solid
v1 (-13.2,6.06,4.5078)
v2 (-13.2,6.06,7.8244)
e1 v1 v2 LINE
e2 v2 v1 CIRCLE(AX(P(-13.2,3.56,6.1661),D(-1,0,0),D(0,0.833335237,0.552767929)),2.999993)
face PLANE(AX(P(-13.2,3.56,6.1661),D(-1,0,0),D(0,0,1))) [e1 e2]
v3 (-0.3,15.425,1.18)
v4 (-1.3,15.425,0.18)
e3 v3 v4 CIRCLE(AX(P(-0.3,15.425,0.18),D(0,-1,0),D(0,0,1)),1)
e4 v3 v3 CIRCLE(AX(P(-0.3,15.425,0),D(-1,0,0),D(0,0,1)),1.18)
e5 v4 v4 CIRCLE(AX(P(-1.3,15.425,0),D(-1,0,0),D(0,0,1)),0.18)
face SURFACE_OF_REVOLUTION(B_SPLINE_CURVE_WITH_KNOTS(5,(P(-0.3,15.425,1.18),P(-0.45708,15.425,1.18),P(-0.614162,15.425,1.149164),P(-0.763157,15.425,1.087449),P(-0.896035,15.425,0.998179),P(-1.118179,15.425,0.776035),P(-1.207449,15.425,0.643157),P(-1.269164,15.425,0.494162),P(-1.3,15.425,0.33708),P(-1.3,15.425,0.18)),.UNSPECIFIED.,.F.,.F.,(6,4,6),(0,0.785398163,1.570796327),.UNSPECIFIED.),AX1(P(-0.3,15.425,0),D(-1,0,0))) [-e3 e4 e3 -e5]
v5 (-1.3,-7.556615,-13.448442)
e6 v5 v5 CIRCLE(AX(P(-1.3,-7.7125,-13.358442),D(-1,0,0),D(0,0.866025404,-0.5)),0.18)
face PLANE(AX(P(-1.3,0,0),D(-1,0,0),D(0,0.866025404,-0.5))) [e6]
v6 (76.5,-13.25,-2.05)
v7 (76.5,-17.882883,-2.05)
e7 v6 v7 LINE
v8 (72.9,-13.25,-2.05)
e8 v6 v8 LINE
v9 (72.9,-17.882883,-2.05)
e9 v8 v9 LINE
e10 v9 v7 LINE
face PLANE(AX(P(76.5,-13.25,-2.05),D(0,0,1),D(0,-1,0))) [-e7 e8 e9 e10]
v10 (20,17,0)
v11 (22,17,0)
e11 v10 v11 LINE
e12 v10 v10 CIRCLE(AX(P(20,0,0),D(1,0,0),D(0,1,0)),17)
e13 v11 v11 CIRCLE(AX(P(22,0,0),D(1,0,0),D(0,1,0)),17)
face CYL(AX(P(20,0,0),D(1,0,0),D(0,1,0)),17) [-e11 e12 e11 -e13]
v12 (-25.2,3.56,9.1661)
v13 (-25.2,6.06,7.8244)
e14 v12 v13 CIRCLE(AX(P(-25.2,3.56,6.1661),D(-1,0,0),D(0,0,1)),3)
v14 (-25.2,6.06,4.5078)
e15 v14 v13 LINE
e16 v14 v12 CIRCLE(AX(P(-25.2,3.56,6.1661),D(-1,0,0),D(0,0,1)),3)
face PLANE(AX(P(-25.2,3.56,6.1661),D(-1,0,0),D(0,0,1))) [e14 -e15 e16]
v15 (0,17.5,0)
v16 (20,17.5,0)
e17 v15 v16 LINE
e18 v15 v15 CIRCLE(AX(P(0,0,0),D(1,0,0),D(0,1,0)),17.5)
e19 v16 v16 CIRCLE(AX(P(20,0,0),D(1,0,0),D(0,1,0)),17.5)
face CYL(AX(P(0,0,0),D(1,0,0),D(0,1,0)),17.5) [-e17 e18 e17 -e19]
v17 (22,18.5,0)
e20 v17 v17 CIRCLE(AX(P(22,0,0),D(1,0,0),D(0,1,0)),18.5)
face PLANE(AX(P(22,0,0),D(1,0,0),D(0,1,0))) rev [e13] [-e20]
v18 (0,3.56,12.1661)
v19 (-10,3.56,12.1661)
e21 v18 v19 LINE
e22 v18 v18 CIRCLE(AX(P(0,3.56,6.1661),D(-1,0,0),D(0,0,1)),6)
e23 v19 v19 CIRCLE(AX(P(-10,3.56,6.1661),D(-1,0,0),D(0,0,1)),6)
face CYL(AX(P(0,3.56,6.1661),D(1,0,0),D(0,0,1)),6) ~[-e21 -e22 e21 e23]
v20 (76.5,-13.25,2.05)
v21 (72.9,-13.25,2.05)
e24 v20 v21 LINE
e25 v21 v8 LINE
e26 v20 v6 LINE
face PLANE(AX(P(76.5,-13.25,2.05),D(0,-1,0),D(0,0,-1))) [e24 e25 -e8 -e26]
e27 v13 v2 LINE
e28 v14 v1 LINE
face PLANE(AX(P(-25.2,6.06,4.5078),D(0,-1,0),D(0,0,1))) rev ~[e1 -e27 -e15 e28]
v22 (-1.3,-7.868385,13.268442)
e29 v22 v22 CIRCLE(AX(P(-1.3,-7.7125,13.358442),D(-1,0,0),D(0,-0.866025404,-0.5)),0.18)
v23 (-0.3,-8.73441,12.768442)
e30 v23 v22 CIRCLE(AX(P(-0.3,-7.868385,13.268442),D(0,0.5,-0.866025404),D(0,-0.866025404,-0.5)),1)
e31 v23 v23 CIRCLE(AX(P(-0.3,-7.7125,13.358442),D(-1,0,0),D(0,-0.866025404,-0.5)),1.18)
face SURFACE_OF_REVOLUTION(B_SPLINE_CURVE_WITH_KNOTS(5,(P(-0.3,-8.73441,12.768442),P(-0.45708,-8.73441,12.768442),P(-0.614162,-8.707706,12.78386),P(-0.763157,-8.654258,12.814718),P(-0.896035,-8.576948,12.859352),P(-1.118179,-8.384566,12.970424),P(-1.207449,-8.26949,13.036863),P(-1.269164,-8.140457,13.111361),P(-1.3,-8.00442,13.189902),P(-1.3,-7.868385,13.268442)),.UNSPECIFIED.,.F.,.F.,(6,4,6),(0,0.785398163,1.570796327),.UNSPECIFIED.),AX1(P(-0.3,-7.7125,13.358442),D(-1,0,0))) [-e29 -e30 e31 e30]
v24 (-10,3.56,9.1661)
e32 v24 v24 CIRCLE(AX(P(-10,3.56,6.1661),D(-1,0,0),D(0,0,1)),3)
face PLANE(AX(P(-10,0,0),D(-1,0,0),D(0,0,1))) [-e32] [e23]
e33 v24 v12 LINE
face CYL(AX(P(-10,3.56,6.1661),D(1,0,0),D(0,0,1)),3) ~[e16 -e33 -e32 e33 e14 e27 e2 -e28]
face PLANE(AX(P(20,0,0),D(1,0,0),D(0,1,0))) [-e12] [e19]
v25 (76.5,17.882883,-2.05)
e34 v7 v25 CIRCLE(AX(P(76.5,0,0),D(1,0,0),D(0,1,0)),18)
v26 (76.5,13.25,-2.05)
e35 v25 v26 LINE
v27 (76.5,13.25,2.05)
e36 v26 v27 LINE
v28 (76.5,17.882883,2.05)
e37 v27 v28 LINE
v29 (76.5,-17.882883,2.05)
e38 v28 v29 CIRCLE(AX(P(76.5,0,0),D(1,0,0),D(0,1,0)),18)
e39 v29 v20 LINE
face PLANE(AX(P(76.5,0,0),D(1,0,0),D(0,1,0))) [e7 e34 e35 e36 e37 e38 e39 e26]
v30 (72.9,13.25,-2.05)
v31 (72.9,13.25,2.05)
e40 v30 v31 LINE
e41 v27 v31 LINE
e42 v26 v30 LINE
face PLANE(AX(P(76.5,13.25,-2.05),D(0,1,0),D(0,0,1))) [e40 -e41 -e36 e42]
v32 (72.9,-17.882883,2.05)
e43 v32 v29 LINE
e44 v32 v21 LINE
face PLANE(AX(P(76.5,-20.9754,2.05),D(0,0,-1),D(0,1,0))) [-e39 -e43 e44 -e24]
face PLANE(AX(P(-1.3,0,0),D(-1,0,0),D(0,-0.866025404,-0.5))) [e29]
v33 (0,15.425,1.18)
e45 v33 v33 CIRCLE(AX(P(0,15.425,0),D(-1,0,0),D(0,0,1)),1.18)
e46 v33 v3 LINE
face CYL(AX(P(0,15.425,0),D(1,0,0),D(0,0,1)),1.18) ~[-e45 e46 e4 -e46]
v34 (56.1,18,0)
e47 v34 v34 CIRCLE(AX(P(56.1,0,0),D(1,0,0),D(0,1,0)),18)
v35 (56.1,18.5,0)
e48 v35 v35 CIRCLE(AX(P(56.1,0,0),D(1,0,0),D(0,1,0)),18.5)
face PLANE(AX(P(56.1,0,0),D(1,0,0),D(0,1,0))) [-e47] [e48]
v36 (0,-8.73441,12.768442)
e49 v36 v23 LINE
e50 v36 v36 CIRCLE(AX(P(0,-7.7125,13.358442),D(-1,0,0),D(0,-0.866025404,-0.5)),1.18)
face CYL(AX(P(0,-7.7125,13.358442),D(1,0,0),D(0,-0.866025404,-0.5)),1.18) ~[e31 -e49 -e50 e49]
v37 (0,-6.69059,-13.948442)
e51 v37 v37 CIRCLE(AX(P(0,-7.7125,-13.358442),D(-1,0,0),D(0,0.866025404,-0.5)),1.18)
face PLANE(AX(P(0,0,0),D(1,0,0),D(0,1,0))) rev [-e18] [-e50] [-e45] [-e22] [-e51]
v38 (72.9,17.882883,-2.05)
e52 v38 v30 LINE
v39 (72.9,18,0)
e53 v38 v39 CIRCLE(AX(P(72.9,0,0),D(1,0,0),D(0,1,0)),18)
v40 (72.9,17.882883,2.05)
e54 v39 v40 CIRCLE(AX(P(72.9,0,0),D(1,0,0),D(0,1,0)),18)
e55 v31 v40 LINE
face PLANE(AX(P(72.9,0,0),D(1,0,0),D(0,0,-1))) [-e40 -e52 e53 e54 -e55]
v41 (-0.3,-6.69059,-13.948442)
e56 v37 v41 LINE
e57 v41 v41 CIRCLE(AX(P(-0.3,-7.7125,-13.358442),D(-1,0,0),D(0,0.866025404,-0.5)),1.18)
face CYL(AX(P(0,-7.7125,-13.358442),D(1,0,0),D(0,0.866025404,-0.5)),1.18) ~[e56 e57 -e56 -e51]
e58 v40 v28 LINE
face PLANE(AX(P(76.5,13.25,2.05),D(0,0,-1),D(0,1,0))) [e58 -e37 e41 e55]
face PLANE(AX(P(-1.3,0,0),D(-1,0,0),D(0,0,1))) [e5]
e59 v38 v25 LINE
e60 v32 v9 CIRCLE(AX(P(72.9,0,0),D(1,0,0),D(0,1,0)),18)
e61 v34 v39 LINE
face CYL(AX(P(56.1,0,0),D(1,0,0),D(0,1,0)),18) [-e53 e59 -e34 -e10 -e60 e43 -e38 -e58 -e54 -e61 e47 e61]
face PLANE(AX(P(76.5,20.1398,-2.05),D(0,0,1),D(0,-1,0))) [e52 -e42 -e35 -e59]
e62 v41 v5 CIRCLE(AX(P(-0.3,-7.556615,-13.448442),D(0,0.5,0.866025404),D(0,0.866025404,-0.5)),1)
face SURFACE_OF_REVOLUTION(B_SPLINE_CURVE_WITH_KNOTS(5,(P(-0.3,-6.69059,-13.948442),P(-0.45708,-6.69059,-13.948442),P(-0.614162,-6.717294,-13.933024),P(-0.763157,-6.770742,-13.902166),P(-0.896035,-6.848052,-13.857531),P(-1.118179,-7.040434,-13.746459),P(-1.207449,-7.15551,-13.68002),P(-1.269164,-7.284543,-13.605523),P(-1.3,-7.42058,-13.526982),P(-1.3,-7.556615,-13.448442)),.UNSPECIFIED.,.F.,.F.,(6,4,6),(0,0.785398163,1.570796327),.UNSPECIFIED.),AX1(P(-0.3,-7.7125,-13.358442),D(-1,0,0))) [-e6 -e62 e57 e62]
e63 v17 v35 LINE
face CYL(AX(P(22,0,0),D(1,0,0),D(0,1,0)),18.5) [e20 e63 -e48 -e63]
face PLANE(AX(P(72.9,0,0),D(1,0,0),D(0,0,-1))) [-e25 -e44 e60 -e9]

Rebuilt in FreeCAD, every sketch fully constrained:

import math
import FreeCAD as App
import Part
import Sketcher
from FreeCAD import Vector
Q = App.Units.Quantity


def edges_at(feature, points):
    """Names of the edges that pass closest to the given points."""
    edges = feature.Shape.Edges
    near = lambda p: min(range(len(edges)), key=lambda i: edges[i].distToShape(Part.Vertex(*p))[0])
    return sorted({f"Edge{near(p) + 1}" for p in points})


def add_polygon(sketch, points):
    """Adds a closed chain of lines whose ends are joined by coincident constraints."""
    first, n = sketch.GeometryCount, len(points)
    for a, b in zip(points, points[1:] + points[:1]):
        sketch.addGeometry(Part.LineSegment(App.Vector(*a, 0), App.Vector(*b, 0)), False)
    for i in range(n):
        sketch.addConstraint(Sketcher.Constraint("Coincident", first + i, 2, first + (i + 1) % n, 1))

doc = App.newDocument("Part")
body = doc.addObject("PartDesign::Body", "Body")

# Sketch on XY plane
sketch1 = body.newObject("Sketcher::SketchObject", "Sketch")
sketch1.AttachmentSupport = (doc.getObject("XY_Plane"), [""])
sketch1.MapMode = "FlatFace"
add_polygon(sketch1, [(0, 17.5), (0, 0), (76.5, 0), (76.5, 18), (56.1, 18), (56.1, 18.5), (22, 18.5), (22, 17), (20, 17), (20, 17.5)])  # lines 0-9
sketch1.addConstraint(Sketcher.Constraint("Vertical", 0))
sketch1.addConstraint(Sketcher.Constraint("Horizontal", 1))
sketch1.addConstraint(Sketcher.Constraint("Vertical", 2))
sketch1.addConstraint(Sketcher.Constraint("Horizontal", 3))
sketch1.addConstraint(Sketcher.Constraint("Vertical", 4))
sketch1.addConstraint(Sketcher.Constraint("Horizontal", 5))
sketch1.addConstraint(Sketcher.Constraint("Vertical", 6))
sketch1.addConstraint(Sketcher.Constraint("Horizontal", 7))
sketch1.addConstraint(Sketcher.Constraint("Vertical", 8))
sketch1.addConstraint(Sketcher.Constraint("Horizontal", 9))
sketch1.addConstraint(Sketcher.Constraint("Coincident", 0, 2, -1, 1))
sketch1.addConstraint(Sketcher.Constraint("Equal", 4, 8))
sketch1.addConstraint(Sketcher.Constraint("DistanceX", 7, 2, 7, 1, Q("2 mm")))
sketch1.addConstraint(Sketcher.Constraint("DistanceX", 9, 2, 9, 1, Q("20 mm")))
sketch1.addConstraint(Sketcher.Constraint("DistanceX", 1, 1, 1, 2, Q("76.5 mm")))
sketch1.addConstraint(Sketcher.Constraint("DistanceX", 5, 2, 5, 1, Q("34.1 mm")))
sketch1.addConstraint(Sketcher.Constraint("DistanceY", 2, 1, 2, 2, Q("18 mm")))
sketch1.addConstraint(Sketcher.Constraint("DistanceY", 0, 2, 0, 1, Q("17.5 mm")))
sketch1.addConstraint(Sketcher.Constraint("DistanceY", 4, 1, 4, 2, Q("0.5 mm")))
revolution = body.newObject("PartDesign::Revolution", "Revolution")
revolution.Profile = sketch1
revolution.ReferenceAxis = (sketch1, ["H_Axis"])
revolution.Angle = 360

# Sketch on YZ plane
sketch2 = body.newObject("Sketcher::SketchObject", "Sketch001")
sketch2.AttachmentSupport = (doc.getObject("YZ_Plane"), [""])
sketch2.MapMode = "FlatFace"
sketch2.AttachmentOffset = App.Placement(Vector(0, 0, 76.5), App.Rotation())
add_polygon(sketch2, [(20.1, -2), (20.1, 2), (13.2, 2), (13.2, -2)])  # lines 0-3
add_polygon(sketch2, [(-13.2, -2), (-13.2, 2), (-21, 2), (-21, -2)])  # lines 4-7
sketch2.addConstraint(Sketcher.Constraint("Vertical", 0))
sketch2.addConstraint(Sketcher.Constraint("Horizontal", 1))
sketch2.addConstraint(Sketcher.Constraint("Vertical", 2))
sketch2.addConstraint(Sketcher.Constraint("Horizontal", 3))
sketch2.addConstraint(Sketcher.Constraint("Vertical", 4))
sketch2.addConstraint(Sketcher.Constraint("Horizontal", 5))
sketch2.addConstraint(Sketcher.Constraint("Vertical", 6))
sketch2.addConstraint(Sketcher.Constraint("Horizontal", 7))
sketch2.addConstraint(Sketcher.Constraint("Symmetric", 2, 2, 4, 2, -1, 1))
sketch2.addConstraint(Sketcher.Constraint("Horizontal", 1, 2, 4, 2))
sketch2.addConstraint(Sketcher.Constraint("Horizontal", 3, 2, 6, 2))
sketch2.addConstraint(Sketcher.Constraint("DistanceY", 0, 1, 0, 2, Q("4.1 mm")))
sketch2.addConstraint(Sketcher.Constraint("DistanceX", 4, 2, 1, 2, Q("26.5 mm")))
sketch2.addConstraint(Sketcher.Constraint("DistanceX", 1, 2, 1, 1, Q("6.8898 mm")))
sketch2.addConstraint(Sketcher.Constraint("DistanceX", 5, 2, 5, 1, Q("7.7254 mm")))
pocket1 = body.newObject("PartDesign::Pocket", "Pocket")
pocket1.Profile = sketch2
pocket1.Length = 3.6

# Sketch on YZ plane
sketch3 = body.newObject("Sketcher::SketchObject", "Sketch002")
sketch3.AttachmentSupport = (doc.getObject("YZ_Plane"), [""])
sketch3.MapMode = "FlatFace"
sketch3.addGeometry(Part.Circle(Vector(15.4, 0, 0), Vector(0, 0, 1), 1.2), False)
sketch3.addConstraint(Sketcher.Constraint("PointOnObject", 0, 3, -1))
sketch3.addConstraint(Sketcher.Constraint("Diameter", 0, Q("2.36 mm")))
sketch3.addConstraint(Sketcher.Constraint("DistanceX", -1, 1, 0, 3, Q("15.425 mm")))
pad1 = body.newObject("PartDesign::Pad", "Pad")
pad1.Profile = sketch3
pad1.Length = 1.3
pad1.Reversed = True
doc.recompute()

fillet = body.newObject("PartDesign::Fillet", "Fillet")
fillet.Base = (pad1, edges_at(pad1, [(-1.3, 15.425, -1.18)]))
fillet.Radius = 1
doc.recompute()

polarpattern = body.newObject("PartDesign::PolarPattern", "PolarPattern")
polarpattern.Originals = [pad1, fillet]
polarpattern.Axis = (doc.getObject("X_Axis"), [""])
polarpattern.Angle = 360
polarpattern.Occurrences = 3
body.Tip = polarpattern

# Sketch on YZ plane
sketch4 = body.newObject("Sketcher::SketchObject", "Sketch003")
sketch4.AttachmentSupport = (doc.getObject("YZ_Plane"), [""])
sketch4.MapMode = "FlatFace"
sketch4.addGeometry(Part.Circle(Vector(4, 6, 0), Vector(0, 0, 1), 6), False)
sketch4.addConstraint(Sketcher.Constraint("Diameter", 0, Q("12 mm")))
sketch4.addConstraint(Sketcher.Constraint("DistanceX", -1, 1, 0, 3, Q("3.56 mm")))
sketch4.addConstraint(Sketcher.Constraint("DistanceY", -1, 1, 0, 3, Q("6.166 mm")))
pad2 = body.newObject("PartDesign::Pad", "Pad001")
pad2.Profile = sketch4
pad2.Length = 10
pad2.Reversed = True

# Sketch on YZ plane
sketch5 = body.newObject("Sketcher::SketchObject", "Sketch004")
sketch5.AttachmentSupport = (doc.getObject("YZ_Plane"), [""])
sketch5.MapMode = "FlatFace"
sketch5.AttachmentOffset = App.Placement(Vector(0, 0, -10), App.Rotation())
sketch5.addGeometry(Part.Circle(Vector(3.6, 6.2, 0), Vector(0, 0, 1), 3), False)
sketch5.addConstraint(Sketcher.Constraint("Diameter", 0, Q("6 mm")))
sketch5.addConstraint(Sketcher.Constraint("DistanceX", -1, 1, 0, 3, Q("3.56 mm")))
sketch5.addConstraint(Sketcher.Constraint("DistanceY", -1, 1, 0, 3, Q("6.166 mm")))
pad3 = body.newObject("PartDesign::Pad", "Pad002")
pad3.Profile = sketch5
pad3.Length = 15.2
pad3.Reversed = True

# Sketch on YZ plane
sketch6 = body.newObject("Sketcher::SketchObject", "Sketch005")
sketch6.AttachmentSupport = (doc.getObject("YZ_Plane"), [""])
sketch6.MapMode = "FlatFace"
sketch6.AttachmentOffset = App.Placement(Vector(0, 0, -25.2), App.Rotation())
sketch6.addGeometry(Part.LineSegment(Vector(6.1, 4.5, 0), Vector(6.1, 7.8, 0)), False)
sketch6.addGeometry(Part.ArcOfCircle(Part.Circle(Vector(3.6, 6.2, 0), Vector(0, 0, 1), 3), math.radians(-34), math.radians(34)), False)
sketch6.addConstraint(Sketcher.Constraint("Coincident", 0, 1, 1, 1))
sketch6.addConstraint(Sketcher.Constraint("Coincident", 1, 2, 0, 2))
sketch6.addConstraint(Sketcher.Constraint("Vertical", 0))
sketch6.addConstraint(Sketcher.Constraint("Radius", 1, Q("3 mm")))
sketch6.addConstraint(Sketcher.Constraint("DistanceX", 1, 3, 0, 1, Q("2.5 mm")))
sketch6.addConstraint(Sketcher.Constraint("DistanceX", -1, 1, 1, 3, Q("3.56 mm")))
sketch6.addConstraint(Sketcher.Constraint("DistanceY", -1, 1, 1, 3, Q("6.166 mm")))
pocket2 = body.newObject("PartDesign::Pocket", "Pocket001")
pocket2.Profile = sketch6
pocket2.Length = 12
pocket2.Reversed = True

doc.recompute()
